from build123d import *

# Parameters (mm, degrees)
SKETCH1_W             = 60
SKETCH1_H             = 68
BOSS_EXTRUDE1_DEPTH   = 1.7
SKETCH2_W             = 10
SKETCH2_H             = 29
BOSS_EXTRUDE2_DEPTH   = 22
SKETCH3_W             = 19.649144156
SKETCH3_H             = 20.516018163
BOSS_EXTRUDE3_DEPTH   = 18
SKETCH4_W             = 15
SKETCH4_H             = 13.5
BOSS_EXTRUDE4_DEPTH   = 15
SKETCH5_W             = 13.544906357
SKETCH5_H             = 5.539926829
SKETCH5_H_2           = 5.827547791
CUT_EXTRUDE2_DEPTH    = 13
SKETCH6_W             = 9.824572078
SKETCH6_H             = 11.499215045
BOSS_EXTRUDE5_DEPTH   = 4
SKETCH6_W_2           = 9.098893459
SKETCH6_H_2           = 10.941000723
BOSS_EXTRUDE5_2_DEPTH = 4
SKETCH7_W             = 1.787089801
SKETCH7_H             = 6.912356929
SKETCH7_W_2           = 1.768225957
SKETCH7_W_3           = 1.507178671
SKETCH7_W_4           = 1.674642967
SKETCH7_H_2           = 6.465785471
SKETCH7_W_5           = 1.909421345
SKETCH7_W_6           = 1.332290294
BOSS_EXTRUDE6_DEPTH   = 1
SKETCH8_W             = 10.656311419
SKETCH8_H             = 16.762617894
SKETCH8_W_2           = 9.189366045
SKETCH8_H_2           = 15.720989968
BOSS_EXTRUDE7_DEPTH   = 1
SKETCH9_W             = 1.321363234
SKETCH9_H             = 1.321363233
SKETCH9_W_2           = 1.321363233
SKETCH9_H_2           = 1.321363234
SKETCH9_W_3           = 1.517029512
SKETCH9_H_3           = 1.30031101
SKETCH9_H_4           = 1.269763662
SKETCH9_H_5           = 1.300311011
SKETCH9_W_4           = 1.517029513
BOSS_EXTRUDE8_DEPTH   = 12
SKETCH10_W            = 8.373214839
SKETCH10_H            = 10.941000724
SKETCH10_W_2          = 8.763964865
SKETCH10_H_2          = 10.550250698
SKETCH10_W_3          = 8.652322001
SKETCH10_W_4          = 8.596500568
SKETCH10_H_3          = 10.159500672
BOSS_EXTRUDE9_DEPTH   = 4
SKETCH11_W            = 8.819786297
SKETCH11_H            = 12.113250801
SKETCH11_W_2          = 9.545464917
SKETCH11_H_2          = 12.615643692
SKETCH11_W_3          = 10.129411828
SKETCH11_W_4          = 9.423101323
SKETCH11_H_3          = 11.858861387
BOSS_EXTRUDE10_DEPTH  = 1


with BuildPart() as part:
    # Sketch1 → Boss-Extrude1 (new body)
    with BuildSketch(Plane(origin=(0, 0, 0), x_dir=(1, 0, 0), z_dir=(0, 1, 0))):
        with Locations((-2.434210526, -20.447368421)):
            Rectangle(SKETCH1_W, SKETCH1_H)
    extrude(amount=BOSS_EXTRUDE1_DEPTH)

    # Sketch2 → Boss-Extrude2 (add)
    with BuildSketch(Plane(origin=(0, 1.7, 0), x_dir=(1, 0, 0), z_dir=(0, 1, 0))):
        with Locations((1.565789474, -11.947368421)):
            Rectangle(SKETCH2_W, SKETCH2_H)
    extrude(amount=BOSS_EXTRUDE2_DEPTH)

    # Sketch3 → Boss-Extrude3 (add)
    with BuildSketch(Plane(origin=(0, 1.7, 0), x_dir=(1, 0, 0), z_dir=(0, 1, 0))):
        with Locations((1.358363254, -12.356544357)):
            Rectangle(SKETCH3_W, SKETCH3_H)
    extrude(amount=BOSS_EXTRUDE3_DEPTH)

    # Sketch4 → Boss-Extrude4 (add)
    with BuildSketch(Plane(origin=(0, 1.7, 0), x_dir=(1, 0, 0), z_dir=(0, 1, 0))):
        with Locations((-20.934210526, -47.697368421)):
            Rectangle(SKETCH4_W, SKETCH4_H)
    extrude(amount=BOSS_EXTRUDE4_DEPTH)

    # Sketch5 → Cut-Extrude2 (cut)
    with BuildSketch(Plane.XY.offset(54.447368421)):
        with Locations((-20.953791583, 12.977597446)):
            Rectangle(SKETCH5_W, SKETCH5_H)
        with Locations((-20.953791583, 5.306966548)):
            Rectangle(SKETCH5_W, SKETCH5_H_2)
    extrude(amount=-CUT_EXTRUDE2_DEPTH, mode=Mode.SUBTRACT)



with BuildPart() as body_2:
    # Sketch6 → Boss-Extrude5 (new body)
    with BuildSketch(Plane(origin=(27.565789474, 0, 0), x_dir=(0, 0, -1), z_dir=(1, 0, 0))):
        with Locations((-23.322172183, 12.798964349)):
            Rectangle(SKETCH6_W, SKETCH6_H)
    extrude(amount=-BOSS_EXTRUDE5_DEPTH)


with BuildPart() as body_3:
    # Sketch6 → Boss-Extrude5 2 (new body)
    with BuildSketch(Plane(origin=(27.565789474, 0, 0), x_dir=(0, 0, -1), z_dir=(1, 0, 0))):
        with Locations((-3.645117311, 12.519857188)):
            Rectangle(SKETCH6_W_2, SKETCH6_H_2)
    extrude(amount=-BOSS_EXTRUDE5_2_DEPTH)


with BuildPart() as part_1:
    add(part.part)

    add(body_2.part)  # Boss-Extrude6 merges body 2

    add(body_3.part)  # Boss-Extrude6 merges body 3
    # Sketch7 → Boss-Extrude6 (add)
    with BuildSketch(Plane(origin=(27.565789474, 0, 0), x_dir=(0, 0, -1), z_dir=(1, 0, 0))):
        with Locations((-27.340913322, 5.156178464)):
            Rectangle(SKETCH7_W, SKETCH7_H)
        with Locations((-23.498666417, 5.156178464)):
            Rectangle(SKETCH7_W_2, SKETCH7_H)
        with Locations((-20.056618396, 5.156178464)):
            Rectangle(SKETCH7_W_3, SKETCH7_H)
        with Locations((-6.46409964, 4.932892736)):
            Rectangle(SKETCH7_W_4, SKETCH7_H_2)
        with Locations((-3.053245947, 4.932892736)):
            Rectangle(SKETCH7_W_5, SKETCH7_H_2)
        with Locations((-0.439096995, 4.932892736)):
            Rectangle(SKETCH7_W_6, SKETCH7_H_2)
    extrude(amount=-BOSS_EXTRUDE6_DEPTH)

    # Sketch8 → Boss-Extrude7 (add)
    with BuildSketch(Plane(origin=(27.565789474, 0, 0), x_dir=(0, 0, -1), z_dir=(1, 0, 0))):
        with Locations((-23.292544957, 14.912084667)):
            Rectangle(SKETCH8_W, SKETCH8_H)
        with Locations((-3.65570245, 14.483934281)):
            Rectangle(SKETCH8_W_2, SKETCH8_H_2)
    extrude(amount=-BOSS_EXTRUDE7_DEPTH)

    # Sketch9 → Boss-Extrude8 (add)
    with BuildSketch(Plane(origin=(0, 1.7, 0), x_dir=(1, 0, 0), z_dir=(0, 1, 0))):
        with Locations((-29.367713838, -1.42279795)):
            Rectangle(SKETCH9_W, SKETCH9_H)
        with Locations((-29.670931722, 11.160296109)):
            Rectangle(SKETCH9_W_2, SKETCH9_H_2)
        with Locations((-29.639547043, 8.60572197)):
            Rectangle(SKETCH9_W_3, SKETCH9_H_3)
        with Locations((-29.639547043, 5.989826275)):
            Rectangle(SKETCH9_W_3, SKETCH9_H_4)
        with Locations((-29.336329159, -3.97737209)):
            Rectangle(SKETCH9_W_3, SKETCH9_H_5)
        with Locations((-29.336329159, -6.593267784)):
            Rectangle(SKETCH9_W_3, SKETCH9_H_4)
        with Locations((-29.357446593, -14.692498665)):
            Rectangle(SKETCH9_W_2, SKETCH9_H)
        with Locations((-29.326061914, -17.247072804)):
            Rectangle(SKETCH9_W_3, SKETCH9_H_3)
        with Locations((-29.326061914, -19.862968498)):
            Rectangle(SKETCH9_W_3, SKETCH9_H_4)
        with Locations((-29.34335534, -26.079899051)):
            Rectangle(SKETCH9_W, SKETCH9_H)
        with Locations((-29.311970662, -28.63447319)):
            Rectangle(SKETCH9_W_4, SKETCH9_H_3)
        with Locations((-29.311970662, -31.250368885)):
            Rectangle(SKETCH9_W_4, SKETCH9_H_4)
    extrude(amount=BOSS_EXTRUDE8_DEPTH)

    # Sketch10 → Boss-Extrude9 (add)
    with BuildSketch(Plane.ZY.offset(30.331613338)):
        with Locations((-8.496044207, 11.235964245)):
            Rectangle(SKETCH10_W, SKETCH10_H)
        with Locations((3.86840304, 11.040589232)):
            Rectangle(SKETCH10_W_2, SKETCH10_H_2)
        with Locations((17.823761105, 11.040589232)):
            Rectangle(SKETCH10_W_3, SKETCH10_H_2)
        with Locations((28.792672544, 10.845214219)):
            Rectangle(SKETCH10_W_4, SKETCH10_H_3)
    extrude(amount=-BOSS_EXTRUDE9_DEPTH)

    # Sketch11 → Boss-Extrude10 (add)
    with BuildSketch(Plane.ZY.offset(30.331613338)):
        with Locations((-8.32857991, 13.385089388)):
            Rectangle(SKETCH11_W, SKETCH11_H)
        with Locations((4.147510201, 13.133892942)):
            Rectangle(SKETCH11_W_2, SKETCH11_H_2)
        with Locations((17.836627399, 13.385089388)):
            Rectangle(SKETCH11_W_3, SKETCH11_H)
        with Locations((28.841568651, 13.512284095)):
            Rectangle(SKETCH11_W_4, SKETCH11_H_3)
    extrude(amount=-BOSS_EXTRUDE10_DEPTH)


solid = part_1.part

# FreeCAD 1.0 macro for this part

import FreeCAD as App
import Part
import Sketcher
from FreeCAD import Vector


def add_polygon(sketch, points):
    """Adds a closed chain of lines whose ends are joined by coincident constraints."""
    first, n = sketch.GeometryCount, len(points)
    for a, b in zip(points, points[1:] + points[:1]):
        sketch.addGeometry(Part.LineSegment(App.Vector(*a, 0), App.Vector(*b, 0)), False)
    for i in range(n):
        sketch.addConstraint(Sketcher.Constraint("Coincident", first + i, 2, first + (i + 1) % n, 1))

doc = App.newDocument("Part")
body = doc.addObject("PartDesign::Body", "Body")

sketch1 = doc.addObject("Sketcher::SketchObject", "Sketch")
body.addObject(sketch1)
sketch1.AttachmentSupport = (doc.XZ_Plane, [""])
sketch1.MapMode = "FlatFace"
add_polygon(sketch1, [(-32, -14), (-32, 54), (28, 54), (28, -14)])
sketch1.addConstraint(Sketcher.Constraint("Vertical", 0))
sketch1.addConstraint(Sketcher.Constraint("Horizontal", 1))
sketch1.addConstraint(Sketcher.Constraint("Vertical", 2))
sketch1.addConstraint(Sketcher.Constraint("Horizontal", 3))
sketch1.addConstraint(Sketcher.Constraint("DistanceX", 1, 1, 1, 2, 60.0))
sketch1.addConstraint(Sketcher.Constraint("DistanceY", 0, 1, 0, 2, 68.0))
sketch1.addConstraint(Sketcher.Constraint("DistanceX", 0, 2, -1, 1, 32.434211))
sketch1.addConstraint(Sketcher.Constraint("DistanceY", -1, 1, 0, 2, 54.447368))
pad1 = doc.addObject("PartDesign::Pad", "Pad")
body.addObject(pad1)
pad1.Profile = sketch1
pad1.Length = 1.7
pad1.Reversed = True

sketch2 = doc.addObject("Sketcher::SketchObject", "Sketch001")
body.addObject(sketch2)
sketch2.AttachmentSupport = (doc.XZ_Plane, [""])
sketch2.MapMode = "FlatFace"
sketch2.AttachmentOffset = App.Placement(Vector(0, 0, -1.7), App.Rotation())
add_polygon(sketch2, [(-3, -3), (-3, 26), (7, 26), (7, -3)])
sketch2.addConstraint(Sketcher.Constraint("Vertical", 0))
sketch2.addConstraint(Sketcher.Constraint("Horizontal", 1))
sketch2.addConstraint(Sketcher.Constraint("Vertical", 2))
sketch2.addConstraint(Sketcher.Constraint("Horizontal", 3))
sketch2.addConstraint(Sketcher.Constraint("DistanceX", 1, 1, 1, 2, 10.0))
sketch2.addConstraint(Sketcher.Constraint("DistanceY", 0, 1, 0, 2, 29.0))
sketch2.addConstraint(Sketcher.Constraint("DistanceX", 0, 2, -1, 1, 3.434211))
sketch2.addConstraint(Sketcher.Constraint("DistanceY", -1, 1, 0, 2, 26.447368))
pad2 = doc.addObject("PartDesign::Pad", "Pad001")
body.addObject(pad2)
pad2.Profile = sketch2
pad2.Length = 22
pad2.Reversed = True

sketch3 = doc.addObject("Sketcher::SketchObject", "Sketch002")
body.addObject(sketch3)
sketch3.AttachmentSupport = (doc.XZ_Plane, [""])
sketch3.MapMode = "FlatFace"
sketch3.AttachmentOffset = App.Placement(Vector(0, 0, -1.7), App.Rotation())
add_polygon(sketch3, [(-8, 2), (-8, 23), (11, 23), (11, 2)])
sketch3.addConstraint(Sketcher.Constraint("Vertical", 0))
sketch3.addConstraint(Sketcher.Constraint("Horizontal", 1))
sketch3.addConstraint(Sketcher.Constraint("Vertical", 2))
sketch3.addConstraint(Sketcher.Constraint("Horizontal", 3))
sketch3.addConstraint(Sketcher.Constraint("DistanceY", 0, 1, 0, 2, 20.516018))
sketch3.addConstraint(Sketcher.Constraint("DistanceX", 1, 1, 1, 2, 19.649144))
sketch3.addConstraint(Sketcher.Constraint("DistanceX", 0, 2, -1, 1, 8.466209))
sketch3.addConstraint(Sketcher.Constraint("DistanceY", -1, 1, 0, 2, 22.614553))
pad3 = doc.addObject("PartDesign::Pad", "Pad002")
body.addObject(pad3)
pad3.Profile = sketch3
pad3.Length = 18
pad3.Reversed = True

sketch4 = doc.addObject("Sketcher::SketchObject", "Sketch003")
body.addObject(sketch4)
sketch4.AttachmentSupport = (doc.XZ_Plane, [""])
sketch4.MapMode = "FlatFace"
sketch4.AttachmentOffset = App.Placement(Vector(0, 0, -1.7), App.Rotation())
add_polygon(sketch4, [(-28, 41), (-28, 54), (-13, 54), (-13, 41)])
sketch4.addConstraint(Sketcher.Constraint("Vertical", 0))
sketch4.addConstraint(Sketcher.Constraint("Horizontal", 1))
sketch4.addConstraint(Sketcher.Constraint("Vertical", 2))
sketch4.addConstraint(Sketcher.Constraint("Horizontal", 3))
sketch4.addConstraint(Sketcher.Constraint("DistanceX", 1, 1, 1, 2, 15.0))
sketch4.addConstraint(Sketcher.Constraint("DistanceY", 0, 1, 0, 2, 13.5))
sketch4.addConstraint(Sketcher.Constraint("DistanceX", 0, 2, -1, 1, 28.434211))
sketch4.addConstraint(Sketcher.Constraint("DistanceY", -1, 1, 0, 2, 54.447368))
pad4 = doc.addObject("PartDesign::Pad", "Pad003")
body.addObject(pad4)
pad4.Profile = sketch4
pad4.Length = 15
pad4.Reversed = True

sketch5 = doc.addObject("Sketcher::SketchObject", "Sketch004")
body.addObject(sketch5)
sketch5.AttachmentSupport = (doc.XY_Plane, [""])
sketch5.MapMode = "FlatFace"
sketch5.AttachmentOffset = App.Placement(Vector(0, 0, 54.447368), App.Rotation())
add_polygon(sketch5, [(-28, 16), (-28, 10), (-14, 10), (-14, 16)])
add_polygon(sketch5, [(-28, 8), (-28, 2), (-14, 2), (-14, 8)])
sketch5.addConstraint(Sketcher.Constraint("Vertical", 0))
sketch5.addConstraint(Sketcher.Constraint("Horizontal", 1))
sketch5.addConstraint(Sketcher.Constraint("Vertical", 2))
sketch5.addConstraint(Sketcher.Constraint("Horizontal", 3))
sketch5.addConstraint(Sketcher.Constraint("Vertical", 4))
sketch5.addConstraint(Sketcher.Constraint("Horizontal", 5))
sketch5.addConstraint(Sketcher.Constraint("Vertical", 6))
sketch5.addConstraint(Sketcher.Constraint("Horizontal", 7))
sketch5.addConstraint(Sketcher.Constraint("Vertical", 3, 2, 4, 2))
sketch5.addConstraint(Sketcher.Constraint("Vertical", 2, 2, 5, 2))
sketch5.addConstraint(Sketcher.Constraint("DistanceX", 1, 1, 1, 2, 13.544906))
sketch5.addConstraint(Sketcher.Constraint("DistanceY", 0, 2, 0, 1, 5.539927))
sketch5.addConstraint(Sketcher.Constraint("DistanceY", 4, 2, 4, 1, 5.827548))
sketch5.addConstraint(Sketcher.Constraint("DistanceX", 1, 2, -1, 1, 14.181338))
sketch5.addConstraint(Sketcher.Constraint("DistanceY", -1, 1, 2, 2, 15.747561))
sketch5.addConstraint(Sketcher.Constraint("DistanceY", -1, 1, 6, 2, 8.22074))
pocket1 = doc.addObject("PartDesign::Pocket", "Pocket")
body.addObject(pocket1)
pocket1.Profile = sketch5
pocket1.Length = 13
body2 = doc.addObject("PartDesign::Body", "Body001")

sketch6 = doc.addObject("Sketcher::SketchObject", "Sketch005")
body2.addObject(sketch6)
sketch6.AttachmentSupport = (doc.getObject("YZ_Plane001"), [""])
sketch6.MapMode = "FlatFace"
sketch6.AttachmentOffset = App.Placement(Vector(0, 0, 27.565789), App.Rotation())
add_polygon(sketch6, [(19, 28), (7, 28), (7, 18), (19, 18)])
sketch6.addConstraint(Sketcher.Constraint("Horizontal", 0))
sketch6.addConstraint(Sketcher.Constraint("Vertical", 1))
sketch6.addConstraint(Sketcher.Constraint("Horizontal", 2))
sketch6.addConstraint(Sketcher.Constraint("Vertical", 3))
sketch6.addConstraint(Sketcher.Constraint("DistanceX", 0, 2, 0, 1, 11.499215))
sketch6.addConstraint(Sketcher.Constraint("DistanceY", 1, 2, 1, 1, 9.824572))
sketch6.addConstraint(Sketcher.Constraint("DistanceY", -1, 1, 0, 2, 28.234458))
sketch6.addConstraint(Sketcher.Constraint("DistanceX", -1, 1, 2, 2, 18.548572))
pad5 = doc.addObject("PartDesign::Pad", "Pad004")
body2.addObject(pad5)
pad5.Profile = sketch6
pad5.Length = 4
pad5.Reversed = True
body3 = doc.addObject("PartDesign::Body", "Body002")

sketch7 = doc.addObject("Sketcher::SketchObject", "Sketch006")
body3.addObject(sketch7)
sketch7.AttachmentSupport = (doc.getObject("YZ_Plane002"), [""])
sketch7.MapMode = "FlatFace"
sketch7.AttachmentOffset = App.Placement(Vector(0, 0, 27.565789), App.Rotation())
add_polygon(sketch7, [(18, 8), (7, 8), (7, -1), (18, -1)])
sketch7.addConstraint(Sketcher.Constraint("Horizontal", 0))
sketch7.addConstraint(Sketcher.Constraint("Vertical", 1))
sketch7.addConstraint(Sketcher.Constraint("Horizontal", 2))
sketch7.addConstraint(Sketcher.Constraint("Vertical", 3))
sketch7.addConstraint(Sketcher.Constraint("DistanceX", 0, 2, 0, 1, 10.941001))
sketch7.addConstraint(Sketcher.Constraint("DistanceY", 1, 2, 1, 1, 9.098893))
sketch7.addConstraint(Sketcher.Constraint("DistanceY", 1, 2, -1, 1, 0.904329))
sketch7.addConstraint(Sketcher.Constraint("DistanceX", -1, 1, 0, 2, 7.049357))
pad6 = doc.addObject("PartDesign::Pad", "Pad005")
body3.addObject(pad6)
pad6.Profile = sketch7
pad6.Length = 4
pad6.Reversed = True
body.AllowCompound = True
doc.recompute()

boolean = doc.addObject("PartDesign::Boolean", "Boolean")
body.addObject(boolean)
boolean.Type = "Fuse"
boolean.addObjects([body2])
doc.recompute()

boolean2 = doc.addObject("PartDesign::Boolean", "Boolean001")
body.addObject(boolean2)
boolean2.Type = "Fuse"
boolean2.addObjects([body3])

sketch8 = doc.addObject("Sketcher::SketchObject", "Sketch007")
body.addObject(sketch8)
sketch8.AttachmentSupport = (doc.YZ_Plane, [""])
sketch8.MapMode = "FlatFace"
sketch8.AttachmentOffset = App.Placement(Vector(0, 0, 27.565789), App.Rotation())
add_polygon(sketch8, [(8.6, 28.2), (1.7, 28.2), (1.7, 26.4), (8.6, 26.4)])
add_polygon(sketch8, [(8.6, 24.4), (1.7, 24.4), (1.7, 22.6), (8.6, 22.6)])
add_polygon(sketch8, [(8.6, 20.8), (1.7, 20.8), (1.7, 19.3), (8.6, 19.3)])
add_polygon(sketch8, [(8.2, 7.3), (1.7, 7.3), (1.7, 5.6), (8.2, 5.6)])
add_polygon(sketch8, [(8.2, 4), (1.7, 4), (1.7, 2.1), (8.2, 2.1)])
add_polygon(sketch8, [(8.2, 1.1), (1.7, 1.1), (1.7, -0.2), (8.2, -0.2)])
sketch8.addConstraint(Sketcher.Constraint("Horizontal", 0))
sketch8.addConstraint(Sketcher.Constraint("Vertical", 1))
sketch8.addConstraint(Sketcher.Constraint("Horizontal", 2))
sketch8.addConstraint(Sketcher.Constraint("Vertical", 3))
sketch8.addConstraint(Sketcher.Constraint("Horizontal", 4))
sketch8.addConstraint(Sketcher.Constraint("Vertical", 5))
sketch8.addConstraint(Sketcher.Constraint("Horizontal", 6))
sketch8.addConstraint(Sketcher.Constraint("Vertical", 7))
sketch8.addConstraint(Sketcher.Constraint("Horizontal", 8))
sketch8.addConstraint(Sketcher.Constraint("Vertical", 9))
sketch8.addConstraint(Sketcher.Constraint("Horizontal", 10))
sketch8.addConstraint(Sketcher.Constraint("Vertical", 11))
sketch8.addConstraint(Sketcher.Constraint("Horizontal", 12))
sketch8.addConstraint(Sketcher.Constraint("Vertical", 13))
sketch8.addConstraint(Sketcher.Constraint("Horizontal", 14))
sketch8.addConstraint(Sketcher.Constraint("Vertical", 15))
sketch8.addConstraint(Sketcher.Constraint("Horizontal", 16))
sketch8.addConstraint(Sketcher.Constraint("Vertical", 17))
sketch8.addConstraint(Sketcher.Constraint("Horizontal", 18))
sketch8.addConstraint(Sketcher.Constraint("Vertical", 19))
sketch8.addConstraint(Sketcher.Constraint("Horizontal", 20))
sketch8.addConstraint(Sketcher.Constraint("Vertical", 21))
sketch8.addConstraint(Sketcher.Constraint("Horizontal", 22))
sketch8.addConstraint(Sketcher.Constraint("Vertical", 23))
sketch8.addConstraint(Sketcher.Constraint("Vertical", 1, 2, 4, 2))
sketch8.addConstraint(Sketcher.Constraint("Vertical", 3, 2, 6, 2))
sketch8.addConstraint(Sketcher.Constraint("Vertical", 5, 2, 8, 2))
sketch8.addConstraint(Sketcher.Constraint("Vertical", 7, 2, 10, 2))
sketch8.addConstraint(Sketcher.Constraint("Vertical", 9, 2, 12, 2))
sketch8.addConstraint(Sketcher.Constraint("Vertical", 13, 2, 16, 2))
sketch8.addConstraint(Sketcher.Constraint("Vertical", 15, 2, 18, 2))
sketch8.addConstraint(Sketcher.Constraint("Vertical", 17, 2, 20, 2))
sketch8.addConstraint(Sketcher.Constraint("Vertical", 19, 2, 22, 2))
sketch8.addConstraint(Sketcher.Constraint("DistanceX", -1, 1, 0, 2, 1.7))
sketch8.addConstraint(Sketcher.Constraint("DistanceY", 1, 2, 1, 1, 1.78709))
sketch8.addConstraint(Sketcher.Constraint("DistanceY", 9, 2, 9, 1, 1.507179))
sketch8.addConstraint(Sketcher.Constraint("DistanceY", 17, 2, 17, 1, 1.909421))
sketch8.addConstraint(Sketcher.Constraint("DistanceY", 21, 2, 21, 1, 1.33229))
sketch8.addConstraint(Sketcher.Constraint("DistanceX", 0, 2, 0, 1, 6.912357))
sketch8.addConstraint(Sketcher.Constraint("DistanceX", 12, 2, 12, 1, 6.465785))
sketch8.addConstraint(Sketcher.Constraint("DistanceY", 5, 2, 5, 1, 1.768226))
sketch8.addConstraint(Sketcher.Constraint("DistanceY", 13, 2, 13, 1, 1.674643))
sketch8.addConstraint(Sketcher.Constraint("DistanceY", -1, 1, 0, 2, 28.234458))
sketch8.addConstraint(Sketcher.Constraint("DistanceY", -1, 1, 4, 2, 24.382779))
sketch8.addConstraint(Sketcher.Constraint("DistanceY", -1, 1, 9, 2, 19.303029))
sketch8.addConstraint(Sketcher.Constraint("DistanceY", -1, 1, 12, 2, 7.301421))
sketch8.addConstraint(Sketcher.Constraint("DistanceY", 21, 2, -1, 1, 0.227048))
sketch8.addConstraint(Sketcher.Constraint("DistanceY", 16, 2, 13, 2, 1.618822))
pad7 = doc.addObject("PartDesign::Pad", "Pad006")
body.addObject(pad7)
pad7.Profile = sketch8
pad7.Length = 1
pad7.Reversed = True

sketch9 = doc.addObject("Sketcher::SketchObject", "Sketch008")
body.addObject(sketch9)
sketch9.AttachmentSupport = (doc.YZ_Plane, [""])
sketch9.MapMode = "FlatFace"
sketch9.AttachmentOffset = App.Placement(Vector(0, 0, 27.565789), App.Rotation())
add_polygon(sketch9, [(23, 29), (7, 29), (7, 18), (23, 18)])
add_polygon(sketch9, [(22, 8), (7, 8), (7, -1), (22, -1)])
sketch9.addConstraint(Sketcher.Constraint("Horizontal", 0))
sketch9.addConstraint(Sketcher.Constraint("Vertical", 1))
sketch9.addConstraint(Sketcher.Constraint("Horizontal", 2))
sketch9.addConstraint(Sketcher.Constraint("Vertical", 3))
sketch9.addConstraint(Sketcher.Constraint("Horizontal", 4))
sketch9.addConstraint(Sketcher.Constraint("Vertical", 5))
sketch9.addConstraint(Sketcher.Constraint("Horizontal", 6))
sketch9.addConstraint(Sketcher.Constraint("Vertical", 7))
sketch9.addConstraint(Sketcher.Constraint("DistanceX", 4, 2, 4, 1, 15.72099))
sketch9.addConstraint(Sketcher.Constraint("DistanceY", 1, 2, 1, 1, 10.656311))
sketch9.addConstraint(Sketcher.Constraint("DistanceY", -1, 1, 0, 2, 28.620701))
sketch9.addConstraint(Sketcher.Constraint("DistanceX", 0, 2, 0, 1, 16.762618))
sketch9.addConstraint(Sketcher.Constraint("DistanceY", 5, 2, 5, 1, 9.189366))
sketch9.addConstraint(Sketcher.Constraint("DistanceX", -1, 1, 4, 2, 6.623439))
sketch9.addConstraint(Sketcher.Constraint("DistanceY", 5, 2, -1, 1, 0.938981))
sketch9.addConstraint(Sketcher.Constraint("DistanceX", -1, 1, 0, 2, 6.530776))
pad8 = doc.addObject("PartDesign::Pad", "Pad007")
body.addObject(pad8)
pad8.Profile = sketch9
pad8.Length = 1
pad8.Reversed = True

sketch10 = doc.addObject("Sketcher::SketchObject", "Sketch009")
body.addObject(sketch10)
sketch10.AttachmentSupport = (doc.XZ_Plane, [""])
sketch10.MapMode = "FlatFace"
sketch10.AttachmentOffset = App.Placement(Vector(0, 0, -1.7), App.Rotation())
add_polygon(sketch10, [(-30, 0.8), (-30, 2.1), (-28.7, 2.1), (-28.7, 0.8)])
add_polygon(sketch10, [(-30.3, -11.8), (-30.3, -10.5), (-29, -10.5), (-29, -11.8)])
add_polygon(sketch10, [(-30.4, -9.3), (-30.4, -8), (-28.9, -8), (-28.9, -9.3)])
add_polygon(sketch10, [(-30.4, -6.6), (-30.4, -5.4), (-28.9, -5.4), (-28.9, -6.6)])
add_polygon(sketch10, [(-30.1, 3.3), (-30.1, 4.6), (-28.6, 4.6), (-28.6, 3.3)])
add_polygon(sketch10, [(-30.1, 6), (-30.1, 7.2), (-28.6, 7.2), (-28.6, 6)])
add_polygon(sketch10, [(-30, 14), (-30, 15.4), (-28.7, 15.4), (-28.7, 14)])
add_polygon(sketch10, [(-30.1, 16.6), (-30.1, 17.9), (-28.6, 17.9), (-28.6, 16.6)])
add_polygon(sketch10, [(-30.1, 19.2), (-30.1, 20.5), (-28.6, 20.5), (-28.6, 19.2)])
add_polygon(sketch10, [(-30, 25.4), (-30, 26.7), (-28.7, 26.7), (-28.7, 25.4)])
add_polygon(sketch10, [(-30.1, 28), (-30.1, 29.3), (-28.6, 29.3), (-28.6, 28)])
add_polygon(sketch10, [(-30.1, 30.6), (-30.1, 31.9), (-28.6, 31.9), (-28.6, 30.6)])
sketch10.addConstraint(Sketcher.Constraint("Vertical", 0))
sketch10.addConstraint(Sketcher.Constraint("Horizontal", 1))
sketch10.addConstraint(Sketcher.Constraint("Vertical", 2))
sketch10.addConstraint(Sketcher.Constraint("Horizontal", 3))
sketch10.addConstraint(Sketcher.Constraint("Vertical", 4))
sketch10.addConstraint(Sketcher.Constraint("Horizontal", 5))
sketch10.addConstraint(Sketcher.Constraint("Vertical", 6))
sketch10.addConstraint(Sketcher.Constraint("Horizontal", 7))
sketch10.addConstraint(Sketcher.Constraint("Vertical", 8))
sketch10.addConstraint(Sketcher.Constraint("Horizontal", 9))
sketch10.addConstraint(Sketcher.Constraint("Vertical", 10))
sketch10.addConstraint(Sketcher.Constraint("Horizontal", 11))
sketch10.addConstraint(Sketcher.Constraint("Vertical", 12))
sketch10.addConstraint(Sketcher.Constraint("Horizontal", 13))
sketch10.addConstraint(Sketcher.Constraint("Vertical", 14))
sketch10.addConstraint(Sketcher.Constraint("Horizontal", 15))
sketch10.addConstraint(Sketcher.Constraint("Vertical", 16))
sketch10.addConstraint(Sketcher.Constraint("Horizontal", 17))
sketch10.addConstraint(Sketcher.Constraint("Vertical", 18))
sketch10.addConstraint(Sketcher.Constraint("Horizontal", 19))
sketch10.addConstraint(Sketcher.Constraint("Vertical", 20))
sketch10.addConstraint(Sketcher.Constraint("Horizontal", 21))
sketch10.addConstraint(Sketcher.Constraint("Vertical", 22))
sketch10.addConstraint(Sketcher.Constraint("Horizontal", 23))
sketch10.addConstraint(Sketcher.Constraint("Vertical", 24))
sketch10.addConstraint(Sketcher.Constraint("Horizontal", 25))
sketch10.addConstraint(Sketcher.Constraint("Vertical", 26))
sketch10.addConstraint(Sketcher.Constraint("Horizontal", 27))
sketch10.addConstraint(Sketcher.Constraint("Vertical", 28))
sketch10.addConstraint(Sketcher.Constraint("Horizontal", 29))
sketch10.addConstraint(Sketcher.Constraint("Vertical", 30))
sketch10.addConstraint(Sketcher.Constraint("Horizontal", 31))
sketch10.addConstraint(Sketcher.Constraint("Vertical", 32))
sketch10.addConstraint(Sketcher.Constraint("Horizontal", 33))
sketch10.addConstraint(Sketcher.Constraint("Vertical", 34))
sketch10.addConstraint(Sketcher.Constraint("Horizontal", 35))
sketch10.addConstraint(Sketcher.Constraint("Vertical", 36))
sketch10.addConstraint(Sketcher.Constraint("Horizontal", 37))
sketch10.addConstraint(Sketcher.Constraint("Vertical", 38))
sketch10.addConstraint(Sketcher.Constraint("Horizontal", 39))
sketch10.addConstraint(Sketcher.Constraint("Vertical", 40))
sketch10.addConstraint(Sketcher.Constraint("Horizontal", 41))
sketch10.addConstraint(Sketcher.Constraint("Vertical", 42))
sketch10.addConstraint(Sketcher.Constraint("Horizontal", 43))
sketch10.addConstraint(Sketcher.Constraint("Vertical", 44))
sketch10.addConstraint(Sketcher.Constraint("Horizontal", 45))
sketch10.addConstraint(Sketcher.Constraint("Vertical", 46))
sketch10.addConstraint(Sketcher.Constraint("Horizontal", 47))
sketch10.addConstraint(Sketcher.Constraint("Vertical", 11, 2, 12, 2))
sketch10.addConstraint(Sketcher.Constraint("Vertical", 10, 2, 13, 2))
sketch10.addConstraint(Sketcher.Constraint("Vertical", 19, 2, 20, 2))
sketch10.addConstraint(Sketcher.Constraint("Vertical", 18, 2, 21, 2))
sketch10.addConstraint(Sketcher.Constraint("Vertical", 31, 2, 32, 2))
sketch10.addConstraint(Sketcher.Constraint("Vertical", 30, 2, 33, 2))
sketch10.addConstraint(Sketcher.Constraint("Vertical", 43, 2, 44, 2))
sketch10.addConstraint(Sketcher.Constraint("Vertical", 42, 2, 45, 2))
sketch10.addConstraint(Sketcher.Constraint("Equal", 3, 5))
sketch10.addConstraint(Sketcher.Constraint("Equal", 15, 17))
sketch10.addConstraint(Sketcher.Constraint("Equal", 7, 25))
sketch10.addConstraint(Sketcher.Constraint("Equal", 23, 29))
sketch10.addConstraint(Sketcher.Constraint("Equal", 27, 37))
sketch10.addConstraint(Sketcher.Constraint("Equal", 35, 41))
sketch10.addConstraint(Sketcher.Constraint("Equal", 39, 0))
sketch10.addConstraint(Sketcher.Constraint("Equal", 2, 4))
sketch10.addConstraint(Sketcher.Constraint("Equal", 10, 16))
sketch10.addConstraint(Sketcher.Constraint("Equal", 14, 20))
sketch10.addConstraint(Sketcher.Constraint("Equal", 6, 24))
sketch10.addConstraint(Sketcher.Constraint("Equal", 18, 28))
sketch10.addConstraint(Sketcher.Constraint("Equal", 22, 32))
sketch10.addConstraint(Sketcher.Constraint("Equal", 26, 36))
sketch10.addConstraint(Sketcher.Constraint("Equal", 30, 40))
sketch10.addConstraint(Sketcher.Constraint("Equal", 34, 44))
sketch10.addConstraint(Sketcher.Constraint("DistanceX", 9, 1, 9, 2, 1.51703))
sketch10.addConstraint(Sketcher.Constraint("DistanceY", 8, 1, 8, 2, 1.300311))
sketch10.addConstraint(Sketcher.Constraint("DistanceY", 6, 2, 10, 2, 2.5651))
sketch10.addConstraint(Sketcher.Constraint("DistanceY", 2, 2, 18, 2, 2.5651))
sketch10.addConstraint(Sketcher.Constraint("DistanceY", 26, 2, 30, 2, 2.5651))
sketch10.addConstraint(Sketcher.Constraint("DistanceY", 38, 2, 42, 2, 2.5651))
sketch10.addConstraint(Sketcher.Constraint("DistanceX", 1, 1, 1, 2, 1.321363))
sketch10.addConstraint(Sketcher.Constraint("DistanceY", 12, 1, 12, 2, 1.269764))
sketch10.addConstraint(Sketcher.Constraint("DistanceY", -1, 1, 0, 2, 2.08348))
sketch10.addConstraint(Sketcher.Constraint("DistanceX", 5, 2, -1, 1, 29.01025))
sketch10.addConstraint(Sketcher.Constraint("DistanceX", 8, 2, -1, 1, 30.398062))
sketch10.addConstraint(Sketcher.Constraint("DistanceY", 14, 2, -1, 1, 6.624708))
sketch10.addConstraint(Sketcher.Constraint("DistanceY", -1, 1, 20, 2, 7.22815))
sketch10.addConstraint(Sketcher.Constraint("DistanceX", 24, 2, -1, 1, 30.018128))
sketch10.addConstraint(Sketcher.Constraint("DistanceY", -1, 1, 24, 2, 15.35318))
sketch10.addConstraint(Sketcher.Constraint("DistanceY", -1, 1, 32, 2, 20.49785))
sketch10.addConstraint(Sketcher.Constraint("DistanceY", -1, 1, 36, 2, 26.740581))
sketch10.addConstraint(Sketcher.Constraint("DistanceY", -1, 1, 44, 2, 31.885251))
sketch10.addConstraint(Sketcher.Constraint("DistanceY", 4, 2, 3, 2, 11.261731))
sketch10.addConstraint(Sketcher.Constraint("DistanceX", 4, 2, 2, 2, 1.624581))
sketch10.addConstraint(Sketcher.Constraint("DistanceX", 16, 2, 0, 2, 0.066448))
sketch10.addConstraint(Sketcher.Constraint("DistanceX", 28, 2, 24, 2, 0.066448))
sketch10.addConstraint(Sketcher.Constraint("DistanceX", 32, 2, 36, 2, 0.08054))
sketch10.addConstraint(Sketcher.Constraint("DistanceX", 40, 2, 36, 2, 0.066448))
pad9 = doc.addObject("PartDesign::Pad", "Pad008")
body.addObject(pad9)
pad9.Profile = sketch10
pad9.Length = 12
pad9.Reversed = True

sketch11 = doc.addObject("Sketcher::SketchObject", "Sketch010")
body.addObject(sketch11)
sketch11.AttachmentSupport = (doc.YZ_Plane, [""])
sketch11.MapMode = "FlatFace"
sketch11.AttachmentOffset = App.Placement(Vector(0, 0, -30.331613), App.Rotation())
add_polygon(sketch11, [(17, -13), (6, -13), (6, -4), (17, -4)])
add_polygon(sketch11, [(16, -1), (6, -1), (6, 8), (16, 8)])
add_polygon(sketch11, [(16, 13), (6, 13), (6, 22), (16, 22)])
add_polygon(sketch11, [(16, 24), (6, 24), (6, 33), (16, 33)])
sketch11.addConstraint(Sketcher.Constraint("Horizontal", 0))
sketch11.addConstraint(Sketcher.Constraint("Vertical", 1))
sketch11.addConstraint(Sketcher.Constraint("Horizontal", 2))
sketch11.addConstraint(Sketcher.Constraint("Vertical", 3))
sketch11.addConstraint(Sketcher.Constraint("Horizontal", 4))
sketch11.addConstraint(Sketcher.Constraint("Vertical", 5))
sketch11.addConstraint(Sketcher.Constraint("Horizontal", 6))
sketch11.addConstraint(Sketcher.Constraint("Vertical", 7))
sketch11.addConstraint(Sketcher.Constraint("Horizontal", 8))
sketch11.addConstraint(Sketcher.Constraint("Vertical", 9))
sketch11.addConstraint(Sketcher.Constraint("Horizontal", 10))
sketch11.addConstraint(Sketcher.Constraint("Vertical", 11))
sketch11.addConstraint(Sketcher.Constraint("Horizontal", 12))
sketch11.addConstraint(Sketcher.Constraint("Vertical", 13))
sketch11.addConstraint(Sketcher.Constraint("Horizontal", 14))
sketch11.addConstraint(Sketcher.Constraint("Vertical", 15))
sketch11.addConstraint(Sketcher.Constraint("Vertical", 1, 2, 4, 2))
sketch11.addConstraint(Sketcher.Constraint("Vertical", 5, 2, 8, 2))
sketch11.addConstraint(Sketcher.Constraint("Vertical", 7, 2, 10, 2))
sketch11.addConstraint(Sketcher.Constraint("Vertical", 9, 2, 12, 2))
sketch11.addConstraint(Sketcher.Constraint("DistanceX", 0, 2, 0, 1, 10.941001))
sketch11.addConstraint(Sketcher.Constraint("DistanceX", 12, 2, 12, 1, 10.159501))
sketch11.addConstraint(Sketcher.Constraint("DistanceY", 13, 1, 13, 2, 8.596501))
sketch11.addConstraint(Sketcher.Constraint("DistanceY", 9, 2, 13, 2, 10.941001))
sketch11.addConstraint(Sketcher.Constraint("DistanceX", 4, 2, 4, 1, 10.550251))
sketch11.addConstraint(Sketcher.Constraint("DistanceY", -1, 1, 8, 2, 13.4976))
sketch11.addConstraint(Sketcher.Constraint("DistanceY", 4, 2, 9, 2, 22.663501))
sketch11.addConstraint(Sketcher.Constraint("DistanceY", 1, 1, 1, 2, 8.373215))
sketch11.addConstraint(Sketcher.Constraint("DistanceY", 5, 1, 5, 2, 8.763965))
sketch11.addConstraint(Sketcher.Constraint("DistanceY", 9, 1, 9, 2, 8.652322))
sketch11.addConstraint(Sketcher.Constraint("DistanceY", 0, 2, -1, 1, 12.682652))
sketch11.addConstraint(Sketcher.Constraint("DistanceX", -1, 1, 0, 2, 5.765464))
pad10 = doc.addObject("PartDesign::Pad", "Pad009")
body.addObject(pad10)
pad10.Profile = sketch11
pad10.Length = 4

sketch12 = doc.addObject("Sketcher::SketchObject", "Sketch011")
body.addObject(sketch12)
sketch12.AttachmentSupport = (doc.YZ_Plane, [""])
sketch12.MapMode = "FlatFace"
sketch12.AttachmentOffset = App.Placement(Vector(0, 0, -30.331613), App.Rotation())
add_polygon(sketch12, [(19, -13), (7, -13), (7, -4), (19, -4)])
add_polygon(sketch12, [(19, -1), (7, -1), (7, 9), (19, 9)])
add_polygon(sketch12, [(19, 13), (7, 13), (7, 23), (19, 23)])
add_polygon(sketch12, [(19, 24), (8, 24), (8, 34), (19, 34)])
sketch12.addConstraint(Sketcher.Constraint("Horizontal", 0))
sketch12.addConstraint(Sketcher.Constraint("Vertical", 1))
sketch12.addConstraint(Sketcher.Constraint("Horizontal", 2))
sketch12.addConstraint(Sketcher.Constraint("Vertical", 3))
sketch12.addConstraint(Sketcher.Constraint("Horizontal", 4))
sketch12.addConstraint(Sketcher.Constraint("Vertical", 5))
sketch12.addConstraint(Sketcher.Constraint("Horizontal", 6))
sketch12.addConstraint(Sketcher.Constraint("Vertical", 7))
sketch12.addConstraint(Sketcher.Constraint("Horizontal", 8))
sketch12.addConstraint(Sketcher.Constraint("Vertical", 9))
sketch12.addConstraint(Sketcher.Constraint("Horizontal", 10))
sketch12.addConstraint(Sketcher.Constraint("Vertical", 11))
sketch12.addConstraint(Sketcher.Constraint("Horizontal", 12))
sketch12.addConstraint(Sketcher.Constraint("Vertical", 13))
sketch12.addConstraint(Sketcher.Constraint("Horizontal", 14))
sketch12.addConstraint(Sketcher.Constraint("Vertical", 15))
sketch12.addConstraint(Sketcher.Constraint("Vertical", 3, 2, 6, 2))
sketch12.addConstraint(Sketcher.Constraint("Vertical", 1, 2, 8, 2))
sketch12.addConstraint(Sketcher.Constraint("Vertical", 7, 2, 10, 2))
sketch12.addConstraint(Sketcher.Constraint("Vertical", 11, 2, 14, 2))
sketch12.addConstraint(Sketcher.Constraint("DistanceY", 13, 1, 13, 2, 9.423101))
sketch12.addConstraint(Sketcher.Constraint("DistanceX", 0, 2, 0, 1, 12.113251))
sketch12.addConstraint(Sketcher.Constraint("DistanceX", 12, 2, 12, 1, 11.858861))
sketch12.addConstraint(Sketcher.Constraint("DistanceY", 9, 1, 9, 2, 10.129412))
sketch12.addConstraint(Sketcher.Constraint("DistanceX", 4, 2, 4, 1, 12.615644))
sketch12.addConstraint(Sketcher.Constraint("DistanceY", 1, 1, 1, 2, 8.819786))
sketch12.addConstraint(Sketcher.Constraint("DistanceY", 5, 1, 5, 2, 9.545465))
sketch12.addConstraint(Sketcher.Constraint("DistanceX", -1, 1, 4, 2, 6.826071))
sketch12.addConstraint(Sketcher.Constraint("DistanceY", -1, 1, 8, 2, 12.771921))
sketch12.addConstraint(Sketcher.Constraint("DistanceY", -1, 1, 13, 2, 33.553119))
sketch12.addConstraint(Sketcher.Constraint("DistanceY", 0, 2, 4, 2, 12.113251))
sketch12.addConstraint(Sketcher.Constraint("DistanceY", 5, 2, 8, 2, 3.851679))
pad11 = doc.addObject("PartDesign::Pad", "Pad010")
body.addObject(pad11)
pad11.Profile = sketch12
pad11.Length = 1

doc.recompute()
